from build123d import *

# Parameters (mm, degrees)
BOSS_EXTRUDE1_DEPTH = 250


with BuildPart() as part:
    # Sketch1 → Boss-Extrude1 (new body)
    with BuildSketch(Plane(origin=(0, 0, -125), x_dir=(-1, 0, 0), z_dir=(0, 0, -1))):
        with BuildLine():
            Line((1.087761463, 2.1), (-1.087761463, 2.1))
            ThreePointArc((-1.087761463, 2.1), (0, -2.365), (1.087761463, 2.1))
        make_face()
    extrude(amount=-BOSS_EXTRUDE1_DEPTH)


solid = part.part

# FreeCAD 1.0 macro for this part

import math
import FreeCAD as App
import Part
import Sketcher
from FreeCAD import Vector

doc = App.newDocument("Part")
body = doc.addObject("PartDesign::Body", "Body")

# Sketch on XY plane
sketch1 = doc.addObject("Sketcher::SketchObject", "Sketch")
body.addObject(sketch1)
sketch1.AttachmentSupport = (doc.XY_Plane, [""])
sketch1.MapMode = "FlatFace"
sketch1.AttachmentOffset = App.Placement(Vector(0, 0, -125), App.Rotation())
sketch1.addGeometry([
    Part.LineSegment(Vector(-1.087761, 2.1, 0), Vector(1.087761, 2.1, 0)),
    Part.ArcOfCircle(Part.Circle(Vector(0, 0, 0), Vector(0, 0, 1), 2.365), math.radians(117.383328), math.radians(422.616672)),
], False)
sketch1.addConstraint([
    Sketcher.Constraint("Coincident", 0, 1, 1, 1),
    Sketcher.Constraint("Coincident", 1, 2, 0, 2),
    Sketcher.Constraint("Horizontal", 0),
    Sketcher.Constraint("Coincident", 1, 3, -1, 1),
    Sketcher.Constraint("Radius", 1, 2.365),
    Sketcher.Constraint("DistanceY", -1, 1, 0, 1, 2.1),
])
pad1 = doc.addObject("PartDesign::Pad", "Pad")
body.addObject(pad1)
pad1.Profile = sketch1
pad1.Length = 250

doc.recompute()
